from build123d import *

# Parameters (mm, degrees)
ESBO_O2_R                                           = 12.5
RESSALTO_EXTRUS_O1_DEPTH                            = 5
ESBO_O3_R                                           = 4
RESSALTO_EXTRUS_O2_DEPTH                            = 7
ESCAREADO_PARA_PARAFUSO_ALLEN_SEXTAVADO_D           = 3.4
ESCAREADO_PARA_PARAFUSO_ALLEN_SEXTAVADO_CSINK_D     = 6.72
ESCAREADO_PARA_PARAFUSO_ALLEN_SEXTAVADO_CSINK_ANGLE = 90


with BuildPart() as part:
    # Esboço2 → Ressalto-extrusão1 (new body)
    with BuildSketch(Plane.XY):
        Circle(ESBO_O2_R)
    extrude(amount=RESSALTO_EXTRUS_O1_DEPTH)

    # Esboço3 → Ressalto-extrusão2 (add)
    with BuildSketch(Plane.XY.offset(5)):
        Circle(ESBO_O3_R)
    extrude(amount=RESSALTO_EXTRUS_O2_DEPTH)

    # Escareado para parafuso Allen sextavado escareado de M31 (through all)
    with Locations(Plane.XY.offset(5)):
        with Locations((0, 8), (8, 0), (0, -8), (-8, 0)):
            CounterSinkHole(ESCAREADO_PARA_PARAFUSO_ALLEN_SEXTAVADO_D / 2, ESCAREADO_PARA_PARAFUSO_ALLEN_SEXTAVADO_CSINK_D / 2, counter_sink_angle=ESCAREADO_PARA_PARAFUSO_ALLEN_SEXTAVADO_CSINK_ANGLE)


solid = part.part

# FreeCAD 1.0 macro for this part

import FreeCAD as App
import Part
import Sketcher

V = App.Vector
Q = App.Units.Quantity

doc = App.newDocument("Part")
params = doc.addObject("Spreadsheet::Sheet", "Params")
for row, (alias, value) in enumerate([
    ("sketch1_diameter", "25 mm"),
    ("pad1_length", "5 mm"),
    ("sketch2_diameter", "8 mm"),
    ("pad2_length", "7 mm"),
    ("sketch3_diameter", "3.4 mm"),
    ("hole_diameter", "3.4 mm"),
    ("hole_csink_diameter", "6.72 mm"),
], start=1):
    params.set(f"A{row}", alias)
    params.set(f"B{row}", "=" + value)
    params.setAlias(f"B{row}", alias)

body = doc.addObject("PartDesign::Body", "Body")

# Sketch on XY plane
sketch1 = doc.addObject("Sketcher::SketchObject", "Sketch")
body.addObject(sketch1)
sketch1.AttachmentSupport = (doc.XY_Plane, [""])
sketch1.MapMode = "FlatFace"
sketch1.addGeometry(Part.Circle(V(0, 0, 0), V(0, 0, 1), 12), False)
sketch1.addConstraint([
    Sketcher.Constraint("Coincident", 0, 3, -1, 1),
    Sketcher.Constraint("Diameter", 0, Q("25 mm")),
])
sketch1.setExpression("Constraints[1]", "Params.sketch1_diameter")
pad1 = doc.addObject("PartDesign::Pad", "Pad")
body.addObject(pad1)
pad1.Profile = sketch1
pad1.setExpression("Length", "Params.pad1_length")

# Sketch on XY plane
sketch2 = doc.addObject("Sketcher::SketchObject", "Sketch001")
body.addObject(sketch2)
sketch2.AttachmentSupport = (doc.XY_Plane, [""])
sketch2.MapMode = "FlatFace"
sketch2.AttachmentOffset = App.Placement(V(0, 0, 5), App.Rotation())
sketch2.addGeometry(Part.Circle(V(0, 0, 0), V(0, 0, 1), 4), False)
sketch2.addConstraint([
    Sketcher.Constraint("Coincident", 0, 3, -1, 1),
    Sketcher.Constraint("Diameter", 0, Q("8 mm")),
])
sketch2.setExpression("Constraints[1]", "Params.sketch2_diameter")
pad2 = doc.addObject("PartDesign::Pad", "Pad001")
body.addObject(pad2)
pad2.Profile = sketch2
pad2.setExpression("Length", "Params.pad2_length")

# Sketch on XY plane
sketch3 = doc.addObject("Sketcher::SketchObject", "Sketch002")
body.addObject(sketch3)
sketch3.AttachmentSupport = (doc.XY_Plane, [""])
sketch3.MapMode = "FlatFace"
sketch3.AttachmentOffset = App.Placement(V(0, 0, 5), App.Rotation())
sketch3.addGeometry([
    Part.Circle(V(0, 8, 0), V(0, 0, 1), 1.7),
    Part.Circle(V(8, 0, 0), V(0, 0, 1), 1.7),
    Part.Circle(V(0, -8, 0), V(0, 0, 1), 1.7),
    Part.Circle(V(-8, 0, 0), V(0, 0, 1), 1.7),
], False)
sketch3.addConstraint([
    Sketcher.Constraint("Equal", 0, 1),
    Sketcher.Constraint("Equal", 1, 2),
    Sketcher.Constraint("Equal", 2, 3),
    Sketcher.Constraint("Symmetric", 0, 3, 2, 3, -1, 1),
    Sketcher.Constraint("Symmetric", 1, 3, 3, 3, -1, 1),
    Sketcher.Constraint("PointOnObject", 0, 3, -2),
    Sketcher.Constraint("PointOnObject", 1, 3, -1),
    Sketcher.Constraint("Diameter", 0, Q("3.4 mm")),
    Sketcher.Constraint("DistanceY", -1, 1, 0, 3, Q("8 mm")),
    Sketcher.Constraint("DistanceX", -1, 1, 1, 3, Q("8 mm")),
])
sketch3.setExpression("Constraints[7]", "Params.sketch3_diameter")
doc.recompute()
hole = doc.addObject("PartDesign::Hole", "Hole")
body.addObject(hole)
hole.Profile = sketch3
hole.ThreadType = "None"
hole.setExpression("Diameter", "Params.hole_diameter")
hole.DepthType = "ThroughAll"
hole.HoleCutType = "Countersink"
hole.setExpression("HoleCutDiameter", "Params.hole_csink_diameter")
hole.HoleCutCountersinkAngle = 90

doc.recompute()
